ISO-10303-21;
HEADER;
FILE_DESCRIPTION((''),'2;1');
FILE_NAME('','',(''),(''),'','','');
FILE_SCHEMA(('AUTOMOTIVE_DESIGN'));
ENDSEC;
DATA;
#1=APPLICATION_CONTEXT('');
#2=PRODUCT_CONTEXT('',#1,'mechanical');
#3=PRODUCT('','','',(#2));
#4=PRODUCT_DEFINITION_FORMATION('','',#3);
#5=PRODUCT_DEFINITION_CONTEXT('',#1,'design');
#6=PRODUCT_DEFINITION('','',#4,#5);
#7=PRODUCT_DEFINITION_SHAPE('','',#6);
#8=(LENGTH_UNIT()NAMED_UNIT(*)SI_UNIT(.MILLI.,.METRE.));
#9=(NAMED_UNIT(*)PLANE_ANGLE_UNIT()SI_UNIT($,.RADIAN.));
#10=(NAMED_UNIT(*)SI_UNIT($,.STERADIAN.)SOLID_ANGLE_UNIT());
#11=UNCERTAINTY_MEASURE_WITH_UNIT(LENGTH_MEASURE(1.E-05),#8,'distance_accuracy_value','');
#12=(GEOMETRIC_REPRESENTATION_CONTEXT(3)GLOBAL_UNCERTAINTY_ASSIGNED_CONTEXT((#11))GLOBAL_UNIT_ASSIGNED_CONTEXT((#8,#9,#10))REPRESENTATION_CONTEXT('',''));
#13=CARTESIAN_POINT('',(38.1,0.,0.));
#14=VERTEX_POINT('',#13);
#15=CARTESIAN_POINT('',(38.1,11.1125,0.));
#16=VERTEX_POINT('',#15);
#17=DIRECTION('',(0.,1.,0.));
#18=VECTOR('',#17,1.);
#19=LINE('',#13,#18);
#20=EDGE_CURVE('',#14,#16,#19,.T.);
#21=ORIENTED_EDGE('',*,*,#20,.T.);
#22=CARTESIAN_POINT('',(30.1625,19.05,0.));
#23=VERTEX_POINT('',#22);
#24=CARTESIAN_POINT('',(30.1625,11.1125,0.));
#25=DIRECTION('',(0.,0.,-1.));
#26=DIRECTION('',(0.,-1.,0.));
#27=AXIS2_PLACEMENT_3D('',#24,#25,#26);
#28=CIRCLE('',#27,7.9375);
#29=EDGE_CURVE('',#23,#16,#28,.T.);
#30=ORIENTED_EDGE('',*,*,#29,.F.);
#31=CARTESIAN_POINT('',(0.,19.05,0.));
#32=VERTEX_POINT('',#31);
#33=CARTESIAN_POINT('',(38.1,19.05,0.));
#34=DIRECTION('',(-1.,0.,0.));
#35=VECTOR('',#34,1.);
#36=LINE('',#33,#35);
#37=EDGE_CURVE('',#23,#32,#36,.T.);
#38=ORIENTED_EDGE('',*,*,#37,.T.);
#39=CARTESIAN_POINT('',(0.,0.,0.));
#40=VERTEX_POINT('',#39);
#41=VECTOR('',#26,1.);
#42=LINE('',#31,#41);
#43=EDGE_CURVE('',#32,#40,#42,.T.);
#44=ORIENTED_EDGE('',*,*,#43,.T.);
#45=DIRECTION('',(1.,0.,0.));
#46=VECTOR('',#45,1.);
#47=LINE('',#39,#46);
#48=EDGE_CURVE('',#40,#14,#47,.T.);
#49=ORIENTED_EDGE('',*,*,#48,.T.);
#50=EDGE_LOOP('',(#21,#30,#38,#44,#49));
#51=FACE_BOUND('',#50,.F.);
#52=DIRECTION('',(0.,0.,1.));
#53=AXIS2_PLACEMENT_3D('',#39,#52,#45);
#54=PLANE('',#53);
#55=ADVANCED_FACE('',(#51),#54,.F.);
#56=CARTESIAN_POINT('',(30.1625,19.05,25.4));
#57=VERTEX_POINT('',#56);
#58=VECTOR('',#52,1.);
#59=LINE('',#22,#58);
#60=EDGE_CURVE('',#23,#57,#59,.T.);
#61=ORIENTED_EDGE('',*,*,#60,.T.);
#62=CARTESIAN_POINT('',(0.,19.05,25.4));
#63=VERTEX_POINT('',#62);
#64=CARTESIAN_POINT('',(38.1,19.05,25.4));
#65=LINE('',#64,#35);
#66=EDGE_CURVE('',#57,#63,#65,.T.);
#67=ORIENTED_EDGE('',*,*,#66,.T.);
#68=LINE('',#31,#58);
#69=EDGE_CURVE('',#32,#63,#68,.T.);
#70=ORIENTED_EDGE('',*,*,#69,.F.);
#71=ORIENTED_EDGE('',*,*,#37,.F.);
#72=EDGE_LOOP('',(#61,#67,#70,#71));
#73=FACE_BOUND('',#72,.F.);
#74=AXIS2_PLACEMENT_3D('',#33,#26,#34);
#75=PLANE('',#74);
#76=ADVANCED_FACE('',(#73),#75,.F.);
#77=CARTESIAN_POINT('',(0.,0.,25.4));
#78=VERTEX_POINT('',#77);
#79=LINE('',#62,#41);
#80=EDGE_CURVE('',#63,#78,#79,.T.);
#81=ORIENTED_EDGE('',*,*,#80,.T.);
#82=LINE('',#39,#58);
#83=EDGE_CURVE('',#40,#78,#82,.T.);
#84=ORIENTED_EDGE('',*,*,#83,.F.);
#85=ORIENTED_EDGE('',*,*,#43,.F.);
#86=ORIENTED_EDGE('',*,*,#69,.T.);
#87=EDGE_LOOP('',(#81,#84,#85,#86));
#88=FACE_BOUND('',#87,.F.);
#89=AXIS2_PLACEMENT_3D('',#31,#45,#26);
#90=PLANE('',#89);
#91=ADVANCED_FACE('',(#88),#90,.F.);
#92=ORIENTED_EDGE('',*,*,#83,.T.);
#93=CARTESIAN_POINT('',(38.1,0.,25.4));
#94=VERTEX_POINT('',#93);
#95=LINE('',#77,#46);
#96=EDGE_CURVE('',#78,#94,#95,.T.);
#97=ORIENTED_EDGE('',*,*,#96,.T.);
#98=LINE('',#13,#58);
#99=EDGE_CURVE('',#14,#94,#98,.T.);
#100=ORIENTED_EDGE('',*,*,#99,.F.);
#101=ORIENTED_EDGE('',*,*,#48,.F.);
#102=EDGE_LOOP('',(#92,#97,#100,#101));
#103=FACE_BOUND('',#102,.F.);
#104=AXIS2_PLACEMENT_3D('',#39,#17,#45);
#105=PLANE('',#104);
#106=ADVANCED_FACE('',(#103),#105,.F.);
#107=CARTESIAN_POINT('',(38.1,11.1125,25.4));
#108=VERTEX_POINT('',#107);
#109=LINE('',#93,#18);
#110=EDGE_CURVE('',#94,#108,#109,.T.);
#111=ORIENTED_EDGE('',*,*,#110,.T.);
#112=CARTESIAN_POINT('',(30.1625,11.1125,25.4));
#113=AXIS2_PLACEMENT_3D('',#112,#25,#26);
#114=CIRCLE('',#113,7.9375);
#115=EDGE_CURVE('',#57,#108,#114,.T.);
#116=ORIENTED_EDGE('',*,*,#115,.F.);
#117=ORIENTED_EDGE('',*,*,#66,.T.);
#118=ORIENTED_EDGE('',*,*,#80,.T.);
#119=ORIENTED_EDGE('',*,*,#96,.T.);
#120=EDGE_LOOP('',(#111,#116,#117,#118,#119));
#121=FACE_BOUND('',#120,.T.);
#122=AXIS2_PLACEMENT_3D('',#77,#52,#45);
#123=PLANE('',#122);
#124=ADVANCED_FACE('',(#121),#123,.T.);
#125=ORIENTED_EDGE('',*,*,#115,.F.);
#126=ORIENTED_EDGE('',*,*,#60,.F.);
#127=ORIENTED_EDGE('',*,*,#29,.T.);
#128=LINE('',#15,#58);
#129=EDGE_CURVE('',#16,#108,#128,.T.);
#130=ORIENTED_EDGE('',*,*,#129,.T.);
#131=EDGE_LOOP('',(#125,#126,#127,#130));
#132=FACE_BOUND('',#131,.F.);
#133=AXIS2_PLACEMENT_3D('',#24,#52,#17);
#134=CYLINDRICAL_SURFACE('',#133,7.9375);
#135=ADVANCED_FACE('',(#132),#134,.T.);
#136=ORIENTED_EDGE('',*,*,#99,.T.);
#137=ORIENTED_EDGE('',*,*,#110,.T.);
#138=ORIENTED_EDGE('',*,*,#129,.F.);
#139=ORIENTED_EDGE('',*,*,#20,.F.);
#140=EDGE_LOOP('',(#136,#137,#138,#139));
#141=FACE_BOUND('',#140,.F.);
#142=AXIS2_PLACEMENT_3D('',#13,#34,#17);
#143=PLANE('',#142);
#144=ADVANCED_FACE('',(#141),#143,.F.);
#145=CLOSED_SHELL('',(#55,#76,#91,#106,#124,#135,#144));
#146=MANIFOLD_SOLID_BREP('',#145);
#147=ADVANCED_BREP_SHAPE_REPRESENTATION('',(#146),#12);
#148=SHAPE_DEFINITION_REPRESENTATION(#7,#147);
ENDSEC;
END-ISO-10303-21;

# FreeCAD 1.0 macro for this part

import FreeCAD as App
import Part
import Sketcher
from FreeCAD import Vector
Q = App.Units.Quantity


def edges_at(feature, points):
    """Names of the edges that pass closest to the given points."""
    edges = feature.Shape.Edges
    near = lambda p: min(range(len(edges)), key=lambda i: edges[i].distToShape(Part.Vertex(*p))[0])
    return sorted({f"Edge{near(p) + 1}" for p in points})

doc = App.newDocument("Part")
body = doc.addObject("PartDesign::Body", "Body")

# Sketch on XY plane
sketch1 = doc.addObject("Sketcher::SketchObject", "Sketch")
body.addObject(sketch1)
sketch1.AttachmentSupport = (doc.XY_Plane, [""])
sketch1.MapMode = "FlatFace"
sketch1.addGeometry(Part.LineSegment(Vector(0, 19.05, 0), Vector(0, 0, 0)), False)
sketch1.addGeometry(Part.LineSegment(Vector(0, 0, 0), Vector(38.1, 0, 0)), False)
sketch1.addGeometry(Part.LineSegment(Vector(38.1, 0, 0), Vector(38.1, 19.05, 0)), False)
sketch1.addGeometry(Part.LineSegment(Vector(38.1, 19.05, 0), Vector(0, 19.05, 0)), False)
sketch1.addConstraint(Sketcher.Constraint("Coincident", 0, 2, 1, 1))
sketch1.addConstraint(Sketcher.Constraint("Coincident", 1, 2, 2, 1))
sketch1.addConstraint(Sketcher.Constraint("Coincident", 2, 2, 3, 1))
sketch1.addConstraint(Sketcher.Constraint("Coincident", 3, 2, 0, 1))
sketch1.addConstraint(Sketcher.Constraint("Vertical", 0))
sketch1.addConstraint(Sketcher.Constraint("Horizontal", 1))
sketch1.addConstraint(Sketcher.Constraint("Vertical", 2))
sketch1.addConstraint(Sketcher.Constraint("Horizontal", 3))
sketch1.addConstraint(Sketcher.Constraint("Coincident", 0, 2, -1, 1))
sketch1.addConstraint(Sketcher.Constraint("DistanceX", 1, 1, 1, 2, Q("1.5 in")))
sketch1.addConstraint(Sketcher.Constraint("DistanceY", 0, 2, 0, 1, Q("0.75 in")))
pad1 = doc.addObject("PartDesign::Pad", "Pad")
body.addObject(pad1)
pad1.Profile = sketch1
pad1.Length = Q("1 in")
doc.recompute()

fillet = doc.addObject("PartDesign::Fillet", "Fillet")
body.addObject(fillet)
fillet.Base = (pad1, edges_at(pad1, [(38.1, 19.05, 12.7)]))
fillet.Radius = Q("0.3125 in")

doc.recompute()
